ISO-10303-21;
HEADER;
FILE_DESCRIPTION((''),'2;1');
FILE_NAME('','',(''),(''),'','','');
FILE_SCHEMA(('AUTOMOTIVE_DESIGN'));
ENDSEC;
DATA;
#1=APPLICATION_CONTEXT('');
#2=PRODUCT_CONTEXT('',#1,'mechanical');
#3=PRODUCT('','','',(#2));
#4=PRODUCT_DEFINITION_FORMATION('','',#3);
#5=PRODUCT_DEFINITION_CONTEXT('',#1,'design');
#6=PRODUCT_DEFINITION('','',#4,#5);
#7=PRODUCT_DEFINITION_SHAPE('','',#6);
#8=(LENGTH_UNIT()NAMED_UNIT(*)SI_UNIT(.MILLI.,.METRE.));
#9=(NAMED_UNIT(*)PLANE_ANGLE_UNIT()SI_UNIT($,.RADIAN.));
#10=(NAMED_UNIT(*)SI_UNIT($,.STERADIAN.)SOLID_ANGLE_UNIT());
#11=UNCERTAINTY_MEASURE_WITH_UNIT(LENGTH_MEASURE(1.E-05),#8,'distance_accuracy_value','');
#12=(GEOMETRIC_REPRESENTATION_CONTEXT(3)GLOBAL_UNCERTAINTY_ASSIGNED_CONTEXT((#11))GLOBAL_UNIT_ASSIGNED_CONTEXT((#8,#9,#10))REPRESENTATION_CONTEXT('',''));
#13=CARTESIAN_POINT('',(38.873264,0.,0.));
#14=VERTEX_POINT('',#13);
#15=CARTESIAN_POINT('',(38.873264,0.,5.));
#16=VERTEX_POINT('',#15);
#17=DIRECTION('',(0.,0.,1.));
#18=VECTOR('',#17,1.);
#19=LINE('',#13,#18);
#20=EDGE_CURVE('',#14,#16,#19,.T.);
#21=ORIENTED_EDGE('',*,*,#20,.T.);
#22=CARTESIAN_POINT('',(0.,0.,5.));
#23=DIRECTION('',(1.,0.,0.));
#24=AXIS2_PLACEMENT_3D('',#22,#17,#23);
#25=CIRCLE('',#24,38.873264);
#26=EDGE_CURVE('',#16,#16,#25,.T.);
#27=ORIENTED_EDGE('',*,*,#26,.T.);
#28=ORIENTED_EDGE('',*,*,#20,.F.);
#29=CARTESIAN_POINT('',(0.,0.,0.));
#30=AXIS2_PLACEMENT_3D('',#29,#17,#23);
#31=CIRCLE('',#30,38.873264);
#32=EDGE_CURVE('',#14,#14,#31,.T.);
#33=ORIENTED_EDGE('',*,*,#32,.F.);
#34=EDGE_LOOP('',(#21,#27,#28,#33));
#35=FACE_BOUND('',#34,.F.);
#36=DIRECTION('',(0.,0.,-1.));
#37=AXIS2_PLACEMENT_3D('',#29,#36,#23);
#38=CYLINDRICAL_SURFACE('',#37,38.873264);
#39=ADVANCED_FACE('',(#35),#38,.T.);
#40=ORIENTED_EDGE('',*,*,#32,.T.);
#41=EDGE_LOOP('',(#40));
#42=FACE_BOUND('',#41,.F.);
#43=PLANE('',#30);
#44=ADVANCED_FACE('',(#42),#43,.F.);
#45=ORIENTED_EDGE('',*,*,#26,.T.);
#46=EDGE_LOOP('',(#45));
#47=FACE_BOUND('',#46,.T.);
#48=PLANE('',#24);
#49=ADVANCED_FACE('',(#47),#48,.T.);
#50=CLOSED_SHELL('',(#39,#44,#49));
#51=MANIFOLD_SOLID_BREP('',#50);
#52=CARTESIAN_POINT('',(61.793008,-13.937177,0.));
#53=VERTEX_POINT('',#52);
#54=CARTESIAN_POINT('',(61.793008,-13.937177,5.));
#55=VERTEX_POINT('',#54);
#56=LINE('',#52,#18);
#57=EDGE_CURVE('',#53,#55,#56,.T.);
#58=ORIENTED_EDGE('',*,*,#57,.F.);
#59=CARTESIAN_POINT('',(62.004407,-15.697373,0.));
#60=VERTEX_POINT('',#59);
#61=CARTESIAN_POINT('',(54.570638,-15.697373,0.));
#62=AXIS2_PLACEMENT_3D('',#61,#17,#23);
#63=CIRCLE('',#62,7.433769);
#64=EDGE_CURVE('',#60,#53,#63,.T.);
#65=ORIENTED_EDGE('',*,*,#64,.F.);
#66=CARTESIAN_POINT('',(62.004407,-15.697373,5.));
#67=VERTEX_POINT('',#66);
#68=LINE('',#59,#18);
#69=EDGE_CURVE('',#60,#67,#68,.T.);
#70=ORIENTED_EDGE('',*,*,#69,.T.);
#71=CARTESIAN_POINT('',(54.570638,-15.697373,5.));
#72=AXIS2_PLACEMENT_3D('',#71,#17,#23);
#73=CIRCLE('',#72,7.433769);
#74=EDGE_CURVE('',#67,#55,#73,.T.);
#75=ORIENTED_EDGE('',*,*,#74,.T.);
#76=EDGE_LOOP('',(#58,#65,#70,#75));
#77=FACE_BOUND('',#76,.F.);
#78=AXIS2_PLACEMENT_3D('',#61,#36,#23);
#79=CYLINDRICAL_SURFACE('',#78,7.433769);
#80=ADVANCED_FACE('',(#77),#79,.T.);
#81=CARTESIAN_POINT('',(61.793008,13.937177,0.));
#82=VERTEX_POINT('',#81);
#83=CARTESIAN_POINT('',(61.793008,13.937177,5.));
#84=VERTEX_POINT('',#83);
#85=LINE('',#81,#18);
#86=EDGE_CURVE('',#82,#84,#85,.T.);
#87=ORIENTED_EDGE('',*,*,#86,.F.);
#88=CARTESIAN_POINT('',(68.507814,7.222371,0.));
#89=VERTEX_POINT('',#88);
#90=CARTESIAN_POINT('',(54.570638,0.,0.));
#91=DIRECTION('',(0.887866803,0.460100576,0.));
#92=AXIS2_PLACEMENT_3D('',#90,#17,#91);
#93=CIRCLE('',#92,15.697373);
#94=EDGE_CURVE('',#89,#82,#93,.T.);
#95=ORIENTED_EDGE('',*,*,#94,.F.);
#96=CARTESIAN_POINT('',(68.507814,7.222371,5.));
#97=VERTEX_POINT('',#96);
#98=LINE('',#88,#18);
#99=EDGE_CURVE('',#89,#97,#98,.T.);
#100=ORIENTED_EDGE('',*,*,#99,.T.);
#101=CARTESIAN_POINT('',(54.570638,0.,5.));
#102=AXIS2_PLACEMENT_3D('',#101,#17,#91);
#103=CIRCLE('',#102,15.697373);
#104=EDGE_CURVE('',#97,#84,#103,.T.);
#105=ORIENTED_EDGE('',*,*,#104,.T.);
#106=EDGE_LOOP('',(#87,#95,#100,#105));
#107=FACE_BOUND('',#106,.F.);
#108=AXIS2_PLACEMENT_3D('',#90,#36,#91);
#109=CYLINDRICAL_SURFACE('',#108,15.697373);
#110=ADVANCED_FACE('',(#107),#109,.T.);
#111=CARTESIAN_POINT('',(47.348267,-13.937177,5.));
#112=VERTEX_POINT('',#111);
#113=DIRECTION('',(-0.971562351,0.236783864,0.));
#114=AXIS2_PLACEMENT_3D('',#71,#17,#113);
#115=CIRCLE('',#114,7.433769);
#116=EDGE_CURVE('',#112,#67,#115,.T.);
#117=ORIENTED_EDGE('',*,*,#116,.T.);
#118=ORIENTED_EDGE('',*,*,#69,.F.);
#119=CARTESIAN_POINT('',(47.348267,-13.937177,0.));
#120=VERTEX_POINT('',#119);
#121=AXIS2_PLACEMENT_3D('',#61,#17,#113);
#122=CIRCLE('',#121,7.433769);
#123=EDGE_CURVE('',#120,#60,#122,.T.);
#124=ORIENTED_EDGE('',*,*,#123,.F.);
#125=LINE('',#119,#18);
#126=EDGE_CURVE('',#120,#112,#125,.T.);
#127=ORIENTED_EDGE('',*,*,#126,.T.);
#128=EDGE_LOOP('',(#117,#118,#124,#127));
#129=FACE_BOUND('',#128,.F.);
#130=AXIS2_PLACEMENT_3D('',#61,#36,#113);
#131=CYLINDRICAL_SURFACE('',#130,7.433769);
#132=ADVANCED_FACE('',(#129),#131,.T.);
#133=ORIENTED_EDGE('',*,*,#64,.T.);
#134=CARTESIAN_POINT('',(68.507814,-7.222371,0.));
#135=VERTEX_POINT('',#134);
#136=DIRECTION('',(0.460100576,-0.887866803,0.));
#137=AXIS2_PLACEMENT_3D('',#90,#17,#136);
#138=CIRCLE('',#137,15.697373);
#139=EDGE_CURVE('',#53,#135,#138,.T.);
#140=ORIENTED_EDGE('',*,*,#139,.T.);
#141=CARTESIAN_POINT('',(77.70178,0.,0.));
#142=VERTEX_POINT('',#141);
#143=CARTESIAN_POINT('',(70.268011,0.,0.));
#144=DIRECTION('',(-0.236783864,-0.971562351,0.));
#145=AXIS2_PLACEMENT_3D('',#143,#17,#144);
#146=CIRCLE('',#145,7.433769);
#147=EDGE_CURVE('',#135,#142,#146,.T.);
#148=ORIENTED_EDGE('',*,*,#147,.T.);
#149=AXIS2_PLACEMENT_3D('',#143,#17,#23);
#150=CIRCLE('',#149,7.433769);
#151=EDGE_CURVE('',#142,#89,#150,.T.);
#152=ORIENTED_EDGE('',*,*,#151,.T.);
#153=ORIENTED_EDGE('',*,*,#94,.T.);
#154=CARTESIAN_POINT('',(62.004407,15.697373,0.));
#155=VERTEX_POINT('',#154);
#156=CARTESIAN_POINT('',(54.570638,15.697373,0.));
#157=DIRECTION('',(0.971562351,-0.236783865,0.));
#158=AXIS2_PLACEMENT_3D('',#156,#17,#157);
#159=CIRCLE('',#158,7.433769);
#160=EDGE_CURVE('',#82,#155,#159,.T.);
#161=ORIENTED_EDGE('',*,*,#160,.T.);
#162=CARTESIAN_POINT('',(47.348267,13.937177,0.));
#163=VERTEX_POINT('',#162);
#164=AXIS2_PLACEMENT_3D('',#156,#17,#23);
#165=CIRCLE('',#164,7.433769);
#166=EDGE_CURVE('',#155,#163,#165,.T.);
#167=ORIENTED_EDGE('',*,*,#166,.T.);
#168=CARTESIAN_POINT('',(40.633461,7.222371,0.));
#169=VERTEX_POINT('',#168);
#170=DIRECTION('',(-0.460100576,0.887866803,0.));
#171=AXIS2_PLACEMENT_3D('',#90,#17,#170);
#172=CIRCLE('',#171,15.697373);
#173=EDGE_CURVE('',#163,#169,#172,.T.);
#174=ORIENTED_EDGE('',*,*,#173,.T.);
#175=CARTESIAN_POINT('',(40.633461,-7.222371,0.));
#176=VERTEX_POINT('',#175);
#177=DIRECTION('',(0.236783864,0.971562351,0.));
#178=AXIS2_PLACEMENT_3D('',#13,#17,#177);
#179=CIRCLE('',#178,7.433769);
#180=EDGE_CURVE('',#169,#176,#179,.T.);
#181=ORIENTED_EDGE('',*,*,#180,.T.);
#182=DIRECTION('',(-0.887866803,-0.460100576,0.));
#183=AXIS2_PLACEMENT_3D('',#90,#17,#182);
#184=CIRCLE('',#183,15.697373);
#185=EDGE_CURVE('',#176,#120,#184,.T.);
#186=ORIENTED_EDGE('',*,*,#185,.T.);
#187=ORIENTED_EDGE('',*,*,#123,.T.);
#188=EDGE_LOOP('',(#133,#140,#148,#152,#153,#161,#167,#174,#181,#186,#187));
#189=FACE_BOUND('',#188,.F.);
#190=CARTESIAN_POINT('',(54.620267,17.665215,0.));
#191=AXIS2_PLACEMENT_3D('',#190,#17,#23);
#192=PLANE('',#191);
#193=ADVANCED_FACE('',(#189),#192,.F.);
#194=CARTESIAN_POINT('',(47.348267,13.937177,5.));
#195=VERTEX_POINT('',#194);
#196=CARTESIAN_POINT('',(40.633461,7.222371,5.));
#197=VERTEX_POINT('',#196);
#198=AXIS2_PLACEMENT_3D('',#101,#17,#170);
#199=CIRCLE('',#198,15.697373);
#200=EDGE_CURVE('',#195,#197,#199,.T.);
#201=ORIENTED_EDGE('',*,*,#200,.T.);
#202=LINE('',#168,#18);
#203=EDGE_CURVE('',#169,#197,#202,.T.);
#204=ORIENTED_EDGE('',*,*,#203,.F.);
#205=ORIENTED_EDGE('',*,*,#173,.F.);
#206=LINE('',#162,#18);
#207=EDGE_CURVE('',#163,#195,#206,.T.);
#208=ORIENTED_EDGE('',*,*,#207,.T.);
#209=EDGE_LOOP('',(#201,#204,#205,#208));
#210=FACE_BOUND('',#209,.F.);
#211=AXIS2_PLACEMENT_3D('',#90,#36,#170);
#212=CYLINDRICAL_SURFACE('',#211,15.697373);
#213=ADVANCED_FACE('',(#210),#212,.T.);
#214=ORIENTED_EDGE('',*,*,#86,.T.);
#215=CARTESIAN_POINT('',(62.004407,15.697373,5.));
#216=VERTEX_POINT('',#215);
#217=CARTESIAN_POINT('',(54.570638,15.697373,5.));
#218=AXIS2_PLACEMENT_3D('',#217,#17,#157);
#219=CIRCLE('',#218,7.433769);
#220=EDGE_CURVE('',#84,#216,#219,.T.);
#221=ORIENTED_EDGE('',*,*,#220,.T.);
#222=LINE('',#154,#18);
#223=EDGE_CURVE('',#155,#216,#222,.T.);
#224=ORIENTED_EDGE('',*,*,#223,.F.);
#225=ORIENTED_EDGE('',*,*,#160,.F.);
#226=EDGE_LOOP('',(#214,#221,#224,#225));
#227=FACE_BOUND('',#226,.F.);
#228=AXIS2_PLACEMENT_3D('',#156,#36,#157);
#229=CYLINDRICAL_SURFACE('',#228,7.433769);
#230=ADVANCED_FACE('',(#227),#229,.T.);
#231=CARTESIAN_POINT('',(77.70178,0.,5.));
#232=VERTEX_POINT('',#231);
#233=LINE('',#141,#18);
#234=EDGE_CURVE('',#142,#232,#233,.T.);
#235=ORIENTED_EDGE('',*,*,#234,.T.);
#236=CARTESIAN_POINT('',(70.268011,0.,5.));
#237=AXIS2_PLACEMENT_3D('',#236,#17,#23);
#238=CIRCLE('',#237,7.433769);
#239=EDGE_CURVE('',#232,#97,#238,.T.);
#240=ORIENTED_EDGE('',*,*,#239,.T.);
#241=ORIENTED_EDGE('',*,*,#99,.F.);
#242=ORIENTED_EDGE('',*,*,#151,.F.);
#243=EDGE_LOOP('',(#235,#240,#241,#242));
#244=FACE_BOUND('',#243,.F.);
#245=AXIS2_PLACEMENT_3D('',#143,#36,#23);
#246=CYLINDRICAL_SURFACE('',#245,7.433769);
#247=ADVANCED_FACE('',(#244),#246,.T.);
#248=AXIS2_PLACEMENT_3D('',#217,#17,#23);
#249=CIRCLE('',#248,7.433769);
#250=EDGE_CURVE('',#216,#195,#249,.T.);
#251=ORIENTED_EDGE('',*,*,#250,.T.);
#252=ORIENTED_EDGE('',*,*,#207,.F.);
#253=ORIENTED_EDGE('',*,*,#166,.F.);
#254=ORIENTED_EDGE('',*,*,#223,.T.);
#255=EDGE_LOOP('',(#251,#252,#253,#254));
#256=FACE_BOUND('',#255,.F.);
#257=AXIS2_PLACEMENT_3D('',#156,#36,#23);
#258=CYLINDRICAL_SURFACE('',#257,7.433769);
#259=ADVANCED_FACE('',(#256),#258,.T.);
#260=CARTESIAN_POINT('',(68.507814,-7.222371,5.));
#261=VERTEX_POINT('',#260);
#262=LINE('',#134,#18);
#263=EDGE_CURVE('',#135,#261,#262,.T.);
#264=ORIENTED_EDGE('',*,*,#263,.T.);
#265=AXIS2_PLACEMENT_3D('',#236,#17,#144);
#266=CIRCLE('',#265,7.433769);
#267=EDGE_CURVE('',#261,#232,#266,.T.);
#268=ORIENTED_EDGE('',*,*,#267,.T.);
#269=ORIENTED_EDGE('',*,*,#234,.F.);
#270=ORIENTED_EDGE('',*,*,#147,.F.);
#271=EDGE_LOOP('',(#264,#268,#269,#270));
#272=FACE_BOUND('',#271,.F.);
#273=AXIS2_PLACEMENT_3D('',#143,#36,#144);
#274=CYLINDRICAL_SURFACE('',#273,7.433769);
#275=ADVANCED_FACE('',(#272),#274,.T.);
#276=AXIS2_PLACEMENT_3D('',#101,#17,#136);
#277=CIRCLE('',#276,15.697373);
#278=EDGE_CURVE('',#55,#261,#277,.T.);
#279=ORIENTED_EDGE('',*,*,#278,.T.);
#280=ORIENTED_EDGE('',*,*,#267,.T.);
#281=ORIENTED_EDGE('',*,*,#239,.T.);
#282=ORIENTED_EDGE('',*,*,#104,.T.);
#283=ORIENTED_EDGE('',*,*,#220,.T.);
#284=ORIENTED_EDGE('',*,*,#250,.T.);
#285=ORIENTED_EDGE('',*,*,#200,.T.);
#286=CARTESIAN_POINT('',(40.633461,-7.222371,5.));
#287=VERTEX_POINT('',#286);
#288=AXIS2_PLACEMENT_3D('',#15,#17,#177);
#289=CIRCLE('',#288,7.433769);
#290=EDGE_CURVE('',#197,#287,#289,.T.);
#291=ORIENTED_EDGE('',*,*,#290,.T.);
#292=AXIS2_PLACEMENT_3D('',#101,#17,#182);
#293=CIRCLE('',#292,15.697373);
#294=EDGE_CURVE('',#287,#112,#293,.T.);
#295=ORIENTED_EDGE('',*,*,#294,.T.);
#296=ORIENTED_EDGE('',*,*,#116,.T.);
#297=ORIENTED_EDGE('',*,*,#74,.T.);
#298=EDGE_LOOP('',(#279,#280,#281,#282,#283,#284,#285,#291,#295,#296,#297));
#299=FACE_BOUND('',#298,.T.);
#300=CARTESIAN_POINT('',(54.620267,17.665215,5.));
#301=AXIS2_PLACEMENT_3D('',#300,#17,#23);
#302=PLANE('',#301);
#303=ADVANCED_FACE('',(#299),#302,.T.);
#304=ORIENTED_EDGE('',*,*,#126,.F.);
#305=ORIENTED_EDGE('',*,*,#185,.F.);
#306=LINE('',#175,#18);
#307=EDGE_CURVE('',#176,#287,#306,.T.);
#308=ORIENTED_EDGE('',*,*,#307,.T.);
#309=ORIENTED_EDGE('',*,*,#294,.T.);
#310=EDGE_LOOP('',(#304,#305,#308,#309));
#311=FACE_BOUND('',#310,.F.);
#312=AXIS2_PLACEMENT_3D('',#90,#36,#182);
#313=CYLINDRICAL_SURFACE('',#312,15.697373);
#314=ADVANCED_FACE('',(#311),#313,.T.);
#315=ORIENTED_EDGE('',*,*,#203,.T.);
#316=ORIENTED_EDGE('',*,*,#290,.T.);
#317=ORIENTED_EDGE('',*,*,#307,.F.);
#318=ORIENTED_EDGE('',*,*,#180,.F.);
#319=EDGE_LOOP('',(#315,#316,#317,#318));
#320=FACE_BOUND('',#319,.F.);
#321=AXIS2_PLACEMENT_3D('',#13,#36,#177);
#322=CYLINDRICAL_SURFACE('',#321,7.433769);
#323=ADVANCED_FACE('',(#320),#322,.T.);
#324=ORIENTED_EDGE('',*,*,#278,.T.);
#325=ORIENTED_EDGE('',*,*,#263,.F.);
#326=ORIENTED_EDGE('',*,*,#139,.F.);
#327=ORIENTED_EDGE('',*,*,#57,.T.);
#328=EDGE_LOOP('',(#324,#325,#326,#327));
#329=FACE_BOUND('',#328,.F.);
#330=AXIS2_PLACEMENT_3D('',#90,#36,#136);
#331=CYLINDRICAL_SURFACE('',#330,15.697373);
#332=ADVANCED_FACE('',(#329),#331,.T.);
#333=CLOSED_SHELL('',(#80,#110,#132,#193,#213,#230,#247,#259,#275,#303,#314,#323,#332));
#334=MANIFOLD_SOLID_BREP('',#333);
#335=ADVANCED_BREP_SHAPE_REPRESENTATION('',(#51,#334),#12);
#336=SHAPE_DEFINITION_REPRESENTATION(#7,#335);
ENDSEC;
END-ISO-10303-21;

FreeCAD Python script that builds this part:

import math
import FreeCAD as App
import Part
import Sketcher

V = App.Vector
Q = App.Units.Quantity

doc = App.newDocument("Part")
body = doc.addObject("PartDesign::Body", "Body")

sketch1 = body.newObject("Sketcher::SketchObject", "Sketch")
sketch1.AttachmentSupport = (doc.getObject("XY_Plane"), [""])
sketch1.MapMode = "FlatFace"
sketch1.addGeometry(Part.Circle(V(0, 0, 0), V(0, 0, 1), 39), False)
sketch1.addConstraint(Sketcher.Constraint("Coincident", 0, 3, -1, 1))
sketch1.addConstraint(Sketcher.Constraint("Diameter", 0, Q("77.746529 mm")))
pad1 = body.newObject("PartDesign::Pad", "Pad")
pad1.Profile = sketch1
pad1.Length = 5
body2 = doc.addObject("PartDesign::Body", "Body001")

sketch2 = body2.newObject("Sketcher::SketchObject", "Sketch001")
sketch2.AttachmentSupport = (doc.getObject("XY_Plane001"), [""])
sketch2.MapMode = "FlatFace"
sketch2.addGeometry(Part.ArcOfCircle(Part.Circle(V(54.6, 15.7, 0), V(0, 0, 1), 7.4), math.radians(-13.7), math.radians(0)), False)
sketch2.addGeometry(Part.ArcOfCircle(Part.Circle(V(54.6, 15.7, 0), V(0, 0, 1), 7.4), math.radians(0), math.radians(194)), False)
sketch2.addGeometry(Part.ArcOfCircle(Part.Circle(V(54.6, 0, 0), V(0, 0, 1), 15.7), math.radians(117), math.radians(153)), False)
sketch2.addGeometry(Part.ArcOfCircle(Part.Circle(V(38.9, 0, 0), V(0, 0, 1), 7.4), math.radians(76), math.radians(284)), False)
sketch2.addGeometry(Part.ArcOfCircle(Part.Circle(V(54.6, 0, 0), V(0, 0, 1), 15.7), math.radians(-153), math.radians(-117)), False)
sketch2.addGeometry(Part.ArcOfCircle(Part.Circle(V(54.6, -15.7, 0), V(0, 0, 1), 7.4), math.radians(166), math.radians(360)), False)
sketch2.addGeometry(Part.ArcOfCircle(Part.Circle(V(54.6, -15.7, 0), V(0, 0, 1), 7.4), math.radians(0), math.radians(13.7)), False)
sketch2.addGeometry(Part.ArcOfCircle(Part.Circle(V(54.6, 0, 0), V(0, 0, 1), 15.7), math.radians(-63), math.radians(-27)), False)
sketch2.addGeometry(Part.ArcOfCircle(Part.Circle(V(70.3, 0, 0), V(0, 0, 1), 7.4), math.radians(-104), math.radians(0)), False)
sketch2.addGeometry(Part.ArcOfCircle(Part.Circle(V(70.3, 0, 0), V(0, 0, 1), 7.4), math.radians(0), math.radians(104)), False)
sketch2.addGeometry(Part.ArcOfCircle(Part.Circle(V(54.6, 0, 0), V(0, 0, 1), 15.7), math.radians(27), math.radians(63)), False)
sketch2.addConstraint(Sketcher.Constraint("Tangent", 0, 2, 1, 1))
sketch2.addConstraint(Sketcher.Constraint("Coincident", 1, 2, 2, 1))
sketch2.addConstraint(Sketcher.Constraint("Coincident", 2, 2, 3, 1))
sketch2.addConstraint(Sketcher.Constraint("Coincident", 3, 2, 4, 1))
sketch2.addConstraint(Sketcher.Constraint("Coincident", 4, 2, 5, 1))
sketch2.addConstraint(Sketcher.Constraint("Tangent", 5, 2, 6, 1))
sketch2.addConstraint(Sketcher.Constraint("Coincident", 6, 2, 7, 1))
sketch2.addConstraint(Sketcher.Constraint("Coincident", 7, 2, 8, 1))
sketch2.addConstraint(Sketcher.Constraint("Tangent", 8, 2, 9, 1))
sketch2.addConstraint(Sketcher.Constraint("Coincident", 9, 2, 10, 1))
sketch2.addConstraint(Sketcher.Constraint("Coincident", 10, 2, 0, 1))
sketch2.addConstraint(Sketcher.Constraint("Coincident", 4, 3, 2, 3))
sketch2.addConstraint(Sketcher.Constraint("Coincident", 7, 3, 2, 3))
sketch2.addConstraint(Sketcher.Constraint("Coincident", 10, 3, 2, 3))
sketch2.addConstraint(Sketcher.Constraint("Equal", 0, 1))
sketch2.addConstraint(Sketcher.Constraint("Equal", 1, 3))
sketch2.addConstraint(Sketcher.Constraint("Equal", 2, 4))
sketch2.addConstraint(Sketcher.Constraint("Equal", 3, 5))
sketch2.addConstraint(Sketcher.Constraint("Equal", 5, 6))
sketch2.addConstraint(Sketcher.Constraint("Equal", 4, 7))
sketch2.addConstraint(Sketcher.Constraint("Equal", 6, 8))
sketch2.addConstraint(Sketcher.Constraint("Equal", 8, 9))
sketch2.addConstraint(Sketcher.Constraint("Equal", 7, 10))
sketch2.addConstraint(Sketcher.Constraint("Symmetric", 0, 3, 5, 3, -1))
sketch2.addConstraint(Sketcher.Constraint("Symmetric", 2, 2, 3, 2, -1))
sketch2.addConstraint(Sketcher.Constraint("PointOnObject", 8, 3, -1))
sketch2.addConstraint(Sketcher.Constraint("PointOnObject", 8, 2, -1))
sketch2.addConstraint(Sketcher.Constraint("Horizontal", 1, 3, 0, 2))
sketch2.addConstraint(Sketcher.Constraint("Horizontal", 6, 3, 5, 2))
sketch2.addConstraint(Sketcher.Constraint("Horizontal", 4, 2, 6, 2))
sketch2.addConstraint(Sketcher.Constraint("Horizontal", 3, 2, 7, 2))
sketch2.addConstraint(Sketcher.Constraint("Radius", 0, Q("7.433769 mm")))
sketch2.addConstraint(Sketcher.Constraint("Radius", 2, Q("15.697373 mm")))
sketch2.addConstraint(Sketcher.Constraint("DistanceX", 6, 2, 5, 2, Q("0.211399 mm")))
sketch2.addConstraint(Sketcher.Constraint("DistanceX", -1, 1, 8, 3, Q("70.268011 mm")))
sketch2.addConstraint(Sketcher.Constraint("DistanceX", -1, 1, 2, 2, Q("40.633461 mm")))
pad2 = body2.newObject("PartDesign::Pad", "Pad001")
pad2.Profile = sketch2
pad2.Length = 5

doc.recompute()
